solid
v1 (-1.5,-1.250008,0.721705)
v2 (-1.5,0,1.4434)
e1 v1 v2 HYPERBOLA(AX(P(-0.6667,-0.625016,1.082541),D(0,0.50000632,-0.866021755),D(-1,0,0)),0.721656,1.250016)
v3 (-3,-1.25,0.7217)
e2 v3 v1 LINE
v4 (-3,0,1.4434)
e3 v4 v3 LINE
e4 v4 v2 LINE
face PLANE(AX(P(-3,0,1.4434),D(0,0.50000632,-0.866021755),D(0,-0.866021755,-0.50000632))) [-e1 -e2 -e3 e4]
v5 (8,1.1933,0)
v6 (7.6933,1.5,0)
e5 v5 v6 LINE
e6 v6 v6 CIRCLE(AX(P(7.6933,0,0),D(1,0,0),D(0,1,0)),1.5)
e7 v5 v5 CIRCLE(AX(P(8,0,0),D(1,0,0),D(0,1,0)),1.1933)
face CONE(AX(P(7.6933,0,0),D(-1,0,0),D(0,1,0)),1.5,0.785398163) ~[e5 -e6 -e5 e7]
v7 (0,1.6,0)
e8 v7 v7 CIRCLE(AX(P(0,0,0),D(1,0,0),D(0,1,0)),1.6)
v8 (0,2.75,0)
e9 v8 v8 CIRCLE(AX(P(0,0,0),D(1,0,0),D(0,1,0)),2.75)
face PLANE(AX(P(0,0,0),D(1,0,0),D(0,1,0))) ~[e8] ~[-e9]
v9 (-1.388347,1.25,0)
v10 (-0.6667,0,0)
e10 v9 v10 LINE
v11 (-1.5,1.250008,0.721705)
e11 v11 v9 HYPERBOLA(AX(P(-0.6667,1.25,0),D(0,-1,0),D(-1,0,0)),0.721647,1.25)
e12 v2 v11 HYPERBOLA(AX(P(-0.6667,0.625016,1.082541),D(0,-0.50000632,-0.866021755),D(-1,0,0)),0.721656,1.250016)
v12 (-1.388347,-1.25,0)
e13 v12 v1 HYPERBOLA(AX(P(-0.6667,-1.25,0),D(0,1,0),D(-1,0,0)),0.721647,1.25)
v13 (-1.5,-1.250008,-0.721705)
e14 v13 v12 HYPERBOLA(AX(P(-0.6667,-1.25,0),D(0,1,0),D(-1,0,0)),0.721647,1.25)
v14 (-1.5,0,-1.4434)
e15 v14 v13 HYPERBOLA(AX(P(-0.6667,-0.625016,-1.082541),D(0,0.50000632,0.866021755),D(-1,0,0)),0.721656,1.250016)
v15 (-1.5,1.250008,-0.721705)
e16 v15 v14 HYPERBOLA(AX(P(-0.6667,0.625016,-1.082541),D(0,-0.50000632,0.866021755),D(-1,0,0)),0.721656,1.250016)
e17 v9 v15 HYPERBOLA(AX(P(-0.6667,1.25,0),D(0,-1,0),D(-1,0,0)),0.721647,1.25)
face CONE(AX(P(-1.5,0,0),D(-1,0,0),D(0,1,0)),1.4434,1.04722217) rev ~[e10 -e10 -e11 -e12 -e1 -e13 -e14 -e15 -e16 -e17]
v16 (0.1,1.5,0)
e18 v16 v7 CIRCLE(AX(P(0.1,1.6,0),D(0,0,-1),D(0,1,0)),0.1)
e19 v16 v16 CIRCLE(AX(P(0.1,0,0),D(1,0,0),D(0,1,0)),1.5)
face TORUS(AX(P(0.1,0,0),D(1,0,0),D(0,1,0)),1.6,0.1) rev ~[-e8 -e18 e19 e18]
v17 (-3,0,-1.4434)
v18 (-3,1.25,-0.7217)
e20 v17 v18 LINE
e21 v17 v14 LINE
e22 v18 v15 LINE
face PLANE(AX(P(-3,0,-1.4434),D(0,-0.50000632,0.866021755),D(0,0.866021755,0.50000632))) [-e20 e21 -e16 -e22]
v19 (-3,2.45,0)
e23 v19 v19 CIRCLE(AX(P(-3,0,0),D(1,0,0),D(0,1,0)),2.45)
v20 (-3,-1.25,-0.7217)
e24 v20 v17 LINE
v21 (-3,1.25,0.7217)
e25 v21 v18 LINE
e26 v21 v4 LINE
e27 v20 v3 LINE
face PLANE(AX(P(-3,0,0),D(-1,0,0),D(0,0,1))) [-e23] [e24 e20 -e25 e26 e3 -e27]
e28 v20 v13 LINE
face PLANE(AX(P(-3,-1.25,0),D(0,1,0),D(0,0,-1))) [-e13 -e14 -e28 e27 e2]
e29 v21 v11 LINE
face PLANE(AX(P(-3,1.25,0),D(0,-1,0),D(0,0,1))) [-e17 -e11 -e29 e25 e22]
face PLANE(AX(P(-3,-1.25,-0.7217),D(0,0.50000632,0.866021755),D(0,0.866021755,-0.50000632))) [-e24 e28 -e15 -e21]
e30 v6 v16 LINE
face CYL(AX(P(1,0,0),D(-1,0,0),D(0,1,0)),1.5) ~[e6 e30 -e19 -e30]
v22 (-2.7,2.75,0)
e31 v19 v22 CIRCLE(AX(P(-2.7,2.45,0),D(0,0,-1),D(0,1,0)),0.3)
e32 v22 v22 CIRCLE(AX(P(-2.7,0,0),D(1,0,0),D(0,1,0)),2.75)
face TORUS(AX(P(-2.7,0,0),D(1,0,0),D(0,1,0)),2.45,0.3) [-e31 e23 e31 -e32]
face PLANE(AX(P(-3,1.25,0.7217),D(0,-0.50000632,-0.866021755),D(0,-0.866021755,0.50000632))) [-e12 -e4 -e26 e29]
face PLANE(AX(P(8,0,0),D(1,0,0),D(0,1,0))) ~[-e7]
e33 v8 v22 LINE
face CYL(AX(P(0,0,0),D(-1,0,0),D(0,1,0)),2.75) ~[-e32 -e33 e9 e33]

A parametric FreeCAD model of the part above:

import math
import FreeCAD as App
import Part
import Sketcher
from FreeCAD import Vector
Q = App.Units.Quantity


def edges_at(feature, points):
    """Names of the edges that pass closest to the given points."""
    edges = feature.Shape.Edges
    near = lambda p: min(range(len(edges)), key=lambda i: edges[i].distToShape(Part.Vertex(*p))[0])
    return sorted({f"Edge{near(p) + 1}" for p in points})


def add_polygon(sketch, points):
    """Adds a closed chain of lines whose ends are joined by coincident constraints."""
    first, n = sketch.GeometryCount, len(points)
    for a, b in zip(points, points[1:] + points[:1]):
        sketch.addGeometry(Part.LineSegment(App.Vector(*a, 0), App.Vector(*b, 0)), False)
    for i in range(n):
        sketch.addConstraint(Sketcher.Constraint("Coincident", first + i, 2, first + (i + 1) % n, 1))

doc = App.newDocument("Part")
body = doc.addObject("PartDesign::Body", "Body")

sketch1 = doc.addObject("Sketcher::SketchObject", "Sketch")
body.addObject(sketch1)
sketch1.AttachmentSupport = (doc.XY_Plane, [""])
sketch1.MapMode = "FlatFace"
add_polygon(sketch1, [(-1.5, 1.4), (-0.7, 0), (8, 0), (8, 1.5), (0, 1.5), (0, 2.8), (-3, 2.8), (-3, 1.4)])
sketch1.addConstraint(Sketcher.Constraint("Horizontal", 1))
sketch1.addConstraint(Sketcher.Constraint("Vertical", 2))
sketch1.addConstraint(Sketcher.Constraint("Horizontal", 3))
sketch1.addConstraint(Sketcher.Constraint("Vertical", 4))
sketch1.addConstraint(Sketcher.Constraint("Horizontal", 5))
sketch1.addConstraint(Sketcher.Constraint("Vertical", 6))
sketch1.addConstraint(Sketcher.Constraint("Horizontal", 7))
sketch1.addConstraint(Sketcher.Constraint("PointOnObject", 0, 2, -1))
sketch1.addConstraint(Sketcher.Constraint("PointOnObject", 3, 2, -2))
sketch1.addConstraint(Sketcher.Constraint("Equal", 7, 2))
sketch1.addConstraint(Sketcher.Constraint("DistanceX", 3, 2, 3, 1, 8.0))
sketch1.addConstraint(Sketcher.Constraint("DistanceX", 5, 2, 5, 1, 3.0))
sketch1.addConstraint(Sketcher.Constraint("DistanceX", 7, 1, 7, 2, 1.5))
sketch1.addConstraint(Sketcher.Constraint("DistanceY", 4, 1, 4, 2, 1.25))
sketch1.addConstraint(Sketcher.Constraint("DistanceX", 1, 1, 1, 2, 8.6667))
sketch1.addConstraint(Sketcher.Constraint("DistanceY", 6, 2, 6, 1, 1.3066))
revolution = doc.addObject("PartDesign::Revolution", "Revolution")
body.addObject(revolution)
revolution.Profile = sketch1
revolution.ReferenceAxis = (sketch1, ["H_Axis"])
revolution.Angle = 360

sketch2 = doc.addObject("Sketcher::SketchObject", "Sketch001")
body.addObject(sketch2)
sketch2.AttachmentSupport = (doc.YZ_Plane, [""])
sketch2.MapMode = "FlatFace"
sketch2.AttachmentOffset = App.Placement(Vector(0, 0, -3), App.Rotation())
sketch2.addGeometry(Part.LineSegment(Vector(1.2, 0.7, 0), Vector(0, 1.4, 0)), False)
sketch2.addGeometry(Part.ArcOfCircle(Part.Circle(Vector(0, 0, 0), Vector(0, 0, 1), 1.4), math.radians(30), math.radians(90)), False)
sketch2.addGeometry(Part.ArcOfCircle(Part.Circle(Vector(0, 0, 0), Vector(0, 0, 1), 1.4), math.radians(90), math.radians(150)), False)
sketch2.addGeometry(Part.LineSegment(Vector(0, 1.4, 0), Vector(-1.2, 0.7, 0)), False)
sketch2.addGeometry(Part.ArcOfCircle(Part.Circle(Vector(0, 0, 0), Vector(0, 0, 1), 1.4), math.radians(-30), math.radians(30)), False)
sketch2.addGeometry(Part.LineSegment(Vector(1.2, 0.7, 0), Vector(1.2, -0.7, 0)), False)
sketch2.addGeometry(Part.LineSegment(Vector(-1.2, 0.7, 0), Vector(-1.2, -0.7, 0)), False)
sketch2.addGeometry(Part.ArcOfCircle(Part.Circle(Vector(0, 0, 0), Vector(0, 0, 1), 1.4), math.radians(150), math.radians(210)), False)
sketch2.addGeometry(Part.LineSegment(Vector(-1.2, -0.7, 0), Vector(0, -1.4, 0)), False)
sketch2.addGeometry(Part.ArcOfCircle(Part.Circle(Vector(0, 0, 0), Vector(0, 0, 1), 1.4), math.radians(-150), math.radians(-90)), False)
sketch2.addGeometry(Part.ArcOfCircle(Part.Circle(Vector(0, 0, 0), Vector(0, 0, 1), 1.4), math.radians(-90), math.radians(-30)), False)
sketch2.addGeometry(Part.LineSegment(Vector(0, -1.4, 0), Vector(1.2, -0.7, 0)), False)
sketch2.addConstraint(Sketcher.Constraint("Coincident", 0, 1, 1, 1))
sketch2.addConstraint(Sketcher.Constraint("Coincident", 1, 2, 0, 2))
sketch2.addConstraint(Sketcher.Constraint("Coincident", 2, 1, 3, 1))
sketch2.addConstraint(Sketcher.Constraint("Coincident", 3, 2, 2, 2))
sketch2.addConstraint(Sketcher.Constraint("Coincident", 4, 1, 5, 2))
sketch2.addConstraint(Sketcher.Constraint("Coincident", 5, 1, 4, 2))
sketch2.addConstraint(Sketcher.Constraint("Coincident", 6, 1, 7, 1))
sketch2.addConstraint(Sketcher.Constraint("Coincident", 7, 2, 6, 2))
sketch2.addConstraint(Sketcher.Constraint("Coincident", 8, 1, 9, 1))
sketch2.addConstraint(Sketcher.Constraint("Coincident", 9, 2, 8, 2))
sketch2.addConstraint(Sketcher.Constraint("Coincident", 10, 1, 11, 1))
sketch2.addConstraint(Sketcher.Constraint("Coincident", 11, 2, 10, 2))
sketch2.addConstraint(Sketcher.Constraint("Vertical", 5))
sketch2.addConstraint(Sketcher.Constraint("Vertical", 6))
sketch2.addConstraint(Sketcher.Constraint("Coincident", 1, 3, -1, 1))
sketch2.addConstraint(Sketcher.Constraint("Coincident", 2, 3, -1, 1))
sketch2.addConstraint(Sketcher.Constraint("Coincident", 4, 3, -1, 1))
sketch2.addConstraint(Sketcher.Constraint("Coincident", 7, 3, -1, 1))
sketch2.addConstraint(Sketcher.Constraint("Coincident", 9, 3, -1, 1))
sketch2.addConstraint(Sketcher.Constraint("Coincident", 10, 3, -1, 1))
sketch2.addConstraint(Sketcher.Constraint("Coincident", 2, 1, 1, 2))
sketch2.addConstraint(Sketcher.Constraint("Coincident", 5, 1, 0, 1))
sketch2.addConstraint(Sketcher.Constraint("Coincident", 6, 1, 3, 2))
sketch2.addConstraint(Sketcher.Constraint("Coincident", 8, 1, 7, 2))
sketch2.addConstraint(Sketcher.Constraint("Coincident", 10, 1, 9, 2))
sketch2.addConstraint(Sketcher.Constraint("PointOnObject", 1, 2, -2))
sketch2.addConstraint(Sketcher.Constraint("PointOnObject", 9, 2, -2))
sketch2.addConstraint(Sketcher.Constraint("Parallel", 0, 8))
sketch2.addConstraint(Sketcher.Constraint("Parallel", 3, 11))
sketch2.addConstraint(Sketcher.Constraint("Angle", 0, Q("149.9996 deg")))
sketch2.addConstraint(Sketcher.Constraint("Radius", 1, 1.4434))
pad1 = doc.addObject("PartDesign::Pad", "Pad")
body.addObject(pad1)
pad1.Profile = sketch2
pad1.Type = "UpToFirst"
doc.recompute()

fillet = doc.addObject("PartDesign::Fillet", "Fillet")
body.addObject(fillet)
fillet.Base = (pad1, edges_at(pad1, [(-3, -2.75, 0)]))
fillet.Radius = 0.3
doc.recompute()

chamfer = doc.addObject("PartDesign::Chamfer", "Chamfer")
body.addObject(chamfer)
chamfer.Base = (fillet, edges_at(fillet, [(8, -1.5, 0)]))
chamfer.ChamferType = "Two distances"
chamfer.Size = 0.3067
chamfer.Size2 = 0.3067
doc.recompute()

fillet2 = doc.addObject("PartDesign::Fillet", "Fillet001")
body.addObject(fillet2)
fillet2.Base = (chamfer, edges_at(chamfer, [(0, -1.5, 0)]))
fillet2.Radius = 0.1

doc.recompute()
